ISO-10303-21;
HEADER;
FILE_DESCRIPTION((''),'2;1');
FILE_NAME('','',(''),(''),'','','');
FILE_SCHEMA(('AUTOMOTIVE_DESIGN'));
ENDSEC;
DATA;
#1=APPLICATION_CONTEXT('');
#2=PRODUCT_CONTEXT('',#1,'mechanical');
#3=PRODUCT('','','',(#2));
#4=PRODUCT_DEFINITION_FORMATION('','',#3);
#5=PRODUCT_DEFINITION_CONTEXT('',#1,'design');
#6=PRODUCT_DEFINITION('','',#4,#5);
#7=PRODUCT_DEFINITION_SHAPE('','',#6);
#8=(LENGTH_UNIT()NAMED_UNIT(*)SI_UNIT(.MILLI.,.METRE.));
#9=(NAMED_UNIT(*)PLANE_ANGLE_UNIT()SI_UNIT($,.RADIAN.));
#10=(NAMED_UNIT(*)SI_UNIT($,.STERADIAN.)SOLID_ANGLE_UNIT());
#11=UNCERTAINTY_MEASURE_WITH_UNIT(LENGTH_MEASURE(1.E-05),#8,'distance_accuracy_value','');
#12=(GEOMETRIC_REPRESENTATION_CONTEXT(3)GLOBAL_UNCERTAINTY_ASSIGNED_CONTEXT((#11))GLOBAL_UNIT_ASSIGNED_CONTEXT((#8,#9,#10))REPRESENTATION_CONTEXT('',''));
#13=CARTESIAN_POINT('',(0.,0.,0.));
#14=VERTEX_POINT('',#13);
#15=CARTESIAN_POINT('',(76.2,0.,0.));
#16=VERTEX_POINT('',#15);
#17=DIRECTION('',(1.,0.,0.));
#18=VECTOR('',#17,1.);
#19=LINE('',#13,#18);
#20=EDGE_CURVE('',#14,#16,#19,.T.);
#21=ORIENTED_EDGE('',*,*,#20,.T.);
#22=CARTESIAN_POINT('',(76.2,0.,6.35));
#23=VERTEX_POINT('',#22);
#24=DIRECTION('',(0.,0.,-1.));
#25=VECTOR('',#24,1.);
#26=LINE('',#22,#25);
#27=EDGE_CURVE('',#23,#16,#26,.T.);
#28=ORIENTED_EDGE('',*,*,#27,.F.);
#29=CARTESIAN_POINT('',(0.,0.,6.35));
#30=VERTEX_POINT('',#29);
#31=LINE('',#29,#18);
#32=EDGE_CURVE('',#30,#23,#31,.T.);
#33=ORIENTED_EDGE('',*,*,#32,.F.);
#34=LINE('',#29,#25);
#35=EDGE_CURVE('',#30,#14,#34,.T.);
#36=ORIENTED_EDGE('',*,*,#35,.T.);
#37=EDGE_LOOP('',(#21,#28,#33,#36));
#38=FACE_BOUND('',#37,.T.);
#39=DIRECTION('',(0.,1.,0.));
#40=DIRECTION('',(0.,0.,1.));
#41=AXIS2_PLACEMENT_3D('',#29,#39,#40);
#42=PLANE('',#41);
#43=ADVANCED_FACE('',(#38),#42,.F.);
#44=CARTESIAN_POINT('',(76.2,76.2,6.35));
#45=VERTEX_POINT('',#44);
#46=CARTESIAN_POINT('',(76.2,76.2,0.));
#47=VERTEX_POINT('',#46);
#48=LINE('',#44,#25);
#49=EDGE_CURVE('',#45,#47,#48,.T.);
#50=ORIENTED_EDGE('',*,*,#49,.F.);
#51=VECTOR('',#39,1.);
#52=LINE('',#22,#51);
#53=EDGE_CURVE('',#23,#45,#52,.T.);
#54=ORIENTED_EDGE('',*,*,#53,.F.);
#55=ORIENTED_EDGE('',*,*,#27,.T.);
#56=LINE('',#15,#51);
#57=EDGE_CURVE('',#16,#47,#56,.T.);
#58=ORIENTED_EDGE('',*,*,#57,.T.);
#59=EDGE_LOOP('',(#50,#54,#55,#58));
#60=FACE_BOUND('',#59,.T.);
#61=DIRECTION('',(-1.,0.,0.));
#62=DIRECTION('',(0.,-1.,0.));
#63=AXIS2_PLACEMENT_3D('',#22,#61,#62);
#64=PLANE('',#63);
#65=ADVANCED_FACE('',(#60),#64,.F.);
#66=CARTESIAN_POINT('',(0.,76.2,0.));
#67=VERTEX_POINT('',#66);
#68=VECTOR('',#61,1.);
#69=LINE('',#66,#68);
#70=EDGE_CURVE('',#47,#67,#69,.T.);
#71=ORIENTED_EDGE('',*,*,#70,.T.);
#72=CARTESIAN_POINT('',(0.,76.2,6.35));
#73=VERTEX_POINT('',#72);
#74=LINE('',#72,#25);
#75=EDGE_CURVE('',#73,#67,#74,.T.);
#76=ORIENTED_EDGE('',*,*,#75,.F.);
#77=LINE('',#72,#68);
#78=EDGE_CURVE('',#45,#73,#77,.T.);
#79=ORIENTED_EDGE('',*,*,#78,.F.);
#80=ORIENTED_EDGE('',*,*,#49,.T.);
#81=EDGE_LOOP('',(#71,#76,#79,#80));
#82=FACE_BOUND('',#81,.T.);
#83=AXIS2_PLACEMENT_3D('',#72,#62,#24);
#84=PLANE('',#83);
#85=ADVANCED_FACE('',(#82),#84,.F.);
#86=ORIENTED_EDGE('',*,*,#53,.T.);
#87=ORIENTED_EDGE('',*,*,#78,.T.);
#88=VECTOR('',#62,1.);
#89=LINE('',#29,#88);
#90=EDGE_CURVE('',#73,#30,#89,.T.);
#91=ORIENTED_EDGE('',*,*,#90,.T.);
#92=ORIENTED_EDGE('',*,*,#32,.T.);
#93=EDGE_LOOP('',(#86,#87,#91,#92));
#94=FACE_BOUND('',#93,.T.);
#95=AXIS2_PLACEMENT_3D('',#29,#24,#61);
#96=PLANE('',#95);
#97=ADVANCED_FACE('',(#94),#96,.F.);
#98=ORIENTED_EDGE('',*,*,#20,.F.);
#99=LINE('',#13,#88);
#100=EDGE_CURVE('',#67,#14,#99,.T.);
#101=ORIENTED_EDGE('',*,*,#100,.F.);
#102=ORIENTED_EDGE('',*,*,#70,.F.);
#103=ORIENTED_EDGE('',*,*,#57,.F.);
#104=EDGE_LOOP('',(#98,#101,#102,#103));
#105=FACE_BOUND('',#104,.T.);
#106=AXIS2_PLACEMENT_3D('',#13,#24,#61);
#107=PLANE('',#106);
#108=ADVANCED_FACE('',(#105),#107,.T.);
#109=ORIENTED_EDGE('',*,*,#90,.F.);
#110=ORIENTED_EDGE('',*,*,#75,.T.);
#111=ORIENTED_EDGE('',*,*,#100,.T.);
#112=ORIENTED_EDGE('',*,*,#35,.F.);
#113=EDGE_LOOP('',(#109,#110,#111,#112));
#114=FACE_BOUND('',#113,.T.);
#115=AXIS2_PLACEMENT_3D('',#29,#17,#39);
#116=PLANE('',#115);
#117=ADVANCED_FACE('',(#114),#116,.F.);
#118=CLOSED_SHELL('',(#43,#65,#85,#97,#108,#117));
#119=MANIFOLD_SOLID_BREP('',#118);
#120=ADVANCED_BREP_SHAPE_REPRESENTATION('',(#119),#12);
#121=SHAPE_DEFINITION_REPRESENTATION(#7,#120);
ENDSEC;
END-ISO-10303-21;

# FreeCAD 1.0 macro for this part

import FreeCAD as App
import Part
import Sketcher

V = App.Vector
Q = App.Units.Quantity

doc = App.newDocument("Part")
body = doc.addObject("PartDesign::Body", "Body")

# Sketch on XY plane
sketch1 = body.newObject("Sketcher::SketchObject", "Sketch")
sketch1.AttachmentSupport = (doc.getObject("XY_Plane"), [""])
sketch1.MapMode = "FlatFace"
sketch1.addGeometry([
    Part.LineSegment(V(0, 76, 0), V(0, 0, 0)),
    Part.LineSegment(V(0, 0, 0), V(76, 0, 0)),
    Part.LineSegment(V(76, 0, 0), V(76, 76, 0)),
    Part.LineSegment(V(76, 76, 0), V(0, 76, 0)),
], False)
sketch1.addConstraint([
    Sketcher.Constraint("Coincident", 0, 2, 1, 1),
    Sketcher.Constraint("Coincident", 1, 2, 2, 1),
    Sketcher.Constraint("Coincident", 2, 2, 3, 1),
    Sketcher.Constraint("Coincident", 3, 2, 0, 1),
    Sketcher.Constraint("Vertical", 0),
    Sketcher.Constraint("Horizontal", 1),
    Sketcher.Constraint("Vertical", 2),
    Sketcher.Constraint("Horizontal", 3),
    Sketcher.Constraint("Coincident", 0, 2, -1, 1),
    Sketcher.Constraint("Equal", 3, 0),
    Sketcher.Constraint("DistanceX", 1, 1, 1, 2, Q("3 in")),
])
pad1 = body.newObject("PartDesign::Pad", "Pad")
pad1.Profile = sketch1
pad1.Length = Q("0.25 in")

doc.recompute()
